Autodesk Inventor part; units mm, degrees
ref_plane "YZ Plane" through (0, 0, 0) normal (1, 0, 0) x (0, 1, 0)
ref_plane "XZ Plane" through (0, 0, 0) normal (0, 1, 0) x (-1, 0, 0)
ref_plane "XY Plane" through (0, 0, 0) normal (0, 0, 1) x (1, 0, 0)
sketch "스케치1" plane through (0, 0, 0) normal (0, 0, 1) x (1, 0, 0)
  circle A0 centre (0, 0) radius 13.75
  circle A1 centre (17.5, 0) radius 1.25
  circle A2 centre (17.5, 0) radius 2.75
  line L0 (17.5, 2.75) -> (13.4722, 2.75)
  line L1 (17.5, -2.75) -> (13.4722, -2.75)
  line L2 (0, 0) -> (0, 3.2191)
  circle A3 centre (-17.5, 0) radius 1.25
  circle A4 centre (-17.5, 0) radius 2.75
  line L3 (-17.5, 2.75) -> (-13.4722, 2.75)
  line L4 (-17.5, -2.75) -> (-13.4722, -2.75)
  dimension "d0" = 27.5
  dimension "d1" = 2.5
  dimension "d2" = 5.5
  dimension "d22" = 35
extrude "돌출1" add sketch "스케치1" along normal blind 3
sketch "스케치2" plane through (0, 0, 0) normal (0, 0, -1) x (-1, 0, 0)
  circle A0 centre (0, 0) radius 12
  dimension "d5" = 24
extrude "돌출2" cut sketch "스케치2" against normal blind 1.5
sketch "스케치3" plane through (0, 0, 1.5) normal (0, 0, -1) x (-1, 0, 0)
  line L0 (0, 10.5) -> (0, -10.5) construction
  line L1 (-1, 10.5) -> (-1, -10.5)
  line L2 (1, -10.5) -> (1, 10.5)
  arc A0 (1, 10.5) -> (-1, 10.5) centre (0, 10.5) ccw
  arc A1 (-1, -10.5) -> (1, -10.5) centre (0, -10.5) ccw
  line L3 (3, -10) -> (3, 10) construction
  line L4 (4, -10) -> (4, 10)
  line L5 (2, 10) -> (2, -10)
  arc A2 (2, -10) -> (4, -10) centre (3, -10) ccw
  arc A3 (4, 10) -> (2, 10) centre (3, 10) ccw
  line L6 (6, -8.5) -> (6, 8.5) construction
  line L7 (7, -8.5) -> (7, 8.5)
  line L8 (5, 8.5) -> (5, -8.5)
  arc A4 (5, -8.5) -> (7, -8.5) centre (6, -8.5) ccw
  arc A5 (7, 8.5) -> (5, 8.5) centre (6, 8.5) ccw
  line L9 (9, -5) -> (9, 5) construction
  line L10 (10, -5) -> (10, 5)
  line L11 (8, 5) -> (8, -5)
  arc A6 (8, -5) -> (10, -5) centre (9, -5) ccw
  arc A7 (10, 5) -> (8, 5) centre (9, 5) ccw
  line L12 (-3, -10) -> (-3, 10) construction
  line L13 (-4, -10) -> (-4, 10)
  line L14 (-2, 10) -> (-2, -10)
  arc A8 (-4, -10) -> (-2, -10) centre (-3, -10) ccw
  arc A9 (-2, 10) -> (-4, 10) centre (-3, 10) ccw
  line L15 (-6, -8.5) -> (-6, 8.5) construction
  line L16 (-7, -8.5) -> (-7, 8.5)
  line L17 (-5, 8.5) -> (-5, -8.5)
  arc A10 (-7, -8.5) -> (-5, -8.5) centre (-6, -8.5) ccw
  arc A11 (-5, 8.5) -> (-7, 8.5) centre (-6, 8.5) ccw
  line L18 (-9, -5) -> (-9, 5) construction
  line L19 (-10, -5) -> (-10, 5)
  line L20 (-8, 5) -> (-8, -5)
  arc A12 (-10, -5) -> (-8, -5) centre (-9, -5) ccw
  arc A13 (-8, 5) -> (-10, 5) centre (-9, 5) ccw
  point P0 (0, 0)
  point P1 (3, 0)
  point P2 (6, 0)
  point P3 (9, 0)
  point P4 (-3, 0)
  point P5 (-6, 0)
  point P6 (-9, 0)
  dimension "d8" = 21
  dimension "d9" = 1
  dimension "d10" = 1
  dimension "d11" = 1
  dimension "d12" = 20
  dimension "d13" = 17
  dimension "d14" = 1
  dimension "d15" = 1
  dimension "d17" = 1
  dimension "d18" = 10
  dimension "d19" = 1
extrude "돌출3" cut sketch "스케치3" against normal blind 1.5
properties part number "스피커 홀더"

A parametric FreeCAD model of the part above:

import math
import FreeCAD as App
import Part
import Sketcher
from FreeCAD import Vector

doc = App.newDocument("Part")
body = doc.addObject("PartDesign::Body", "Body")

sketch1 = body.newObject("Sketcher::SketchObject", "Sketch")
sketch1.AttachmentSupport = (doc.getObject("XY_Plane"), [""])
sketch1.MapMode = "FlatFace"
sketch1.addGeometry([
    Part.ArcOfCircle(Part.Circle(Vector(0, 0, 0), Vector(0, 0, 1), 13.8), math.radians(-168), math.radians(-12)),
    Part.LineSegment(Vector(13.5, -2.8, 0), Vector(17.5, -2.8, 0)),
    Part.ArcOfCircle(Part.Circle(Vector(17.5, 0, 0), Vector(0, 0, 1), 2.8), math.radians(-90), math.radians(90)),
    Part.LineSegment(Vector(17.5, 2.8, 0), Vector(13.5, 2.8, 0)),
    Part.ArcOfCircle(Part.Circle(Vector(0, 0, 0), Vector(0, 0, 1), 13.8), math.radians(12), math.radians(168)),
    Part.LineSegment(Vector(-13.5, 2.8, 0), Vector(-17.5, 2.8, 0)),
    Part.ArcOfCircle(Part.Circle(Vector(-17.5, 0, 0), Vector(0, 0, 1), 2.8), math.radians(90), math.radians(270)),
    Part.LineSegment(Vector(-17.5, -2.8, 0), Vector(-13.5, -2.8, 0)),
    Part.Circle(Vector(17.5, 0, 0), Vector(0, 0, 1), 1.2),
    Part.Circle(Vector(-17.5, 0, 0), Vector(0, 0, 1), 1.2),
], False)
sketch1.addConstraint([
    Sketcher.Constraint("Coincident", 0, 2, 1, 1),
    Sketcher.Constraint("Tangent", 1, 2, 2, 1),
    Sketcher.Constraint("Tangent", 2, 2, 3, 1),
    Sketcher.Constraint("Coincident", 3, 2, 4, 1),
    Sketcher.Constraint("Coincident", 4, 2, 5, 1),
    Sketcher.Constraint("Tangent", 5, 2, 6, 1),
    Sketcher.Constraint("Tangent", 6, 2, 7, 1),
    Sketcher.Constraint("Coincident", 7, 2, 0, 1),
    Sketcher.Constraint("Horizontal", 1),
    Sketcher.Constraint("Horizontal", 3),
    Sketcher.Constraint("Horizontal", 5),
    Sketcher.Constraint("Horizontal", 7),
    Sketcher.Constraint("Coincident", 0, 3, -1, 1),
    Sketcher.Constraint("Coincident", 4, 3, -1, 1),
    Sketcher.Constraint("Coincident", 8, 3, 2, 3),
    Sketcher.Constraint("Coincident", 9, 3, 6, 3),
    Sketcher.Constraint("Equal", 0, 4),
    Sketcher.Constraint("Equal", 2, 6),
    Sketcher.Constraint("Equal", 8, 9),
    Sketcher.Constraint("Symmetric", 2, 3, 6, 3, -1, 1),
    Sketcher.Constraint("PointOnObject", 2, 3, -1),
    Sketcher.Constraint("Diameter", 8, 2.5),
    Sketcher.Constraint("Radius", 0, 13.75),
    Sketcher.Constraint("Radius", 2, 2.75),
    Sketcher.Constraint("DistanceX", 6, 3, 2, 3, 35.0),
])
pad1 = body.newObject("PartDesign::Pad", "Pad")
pad1.Profile = sketch1
pad1.Length = 3

sketch2 = body.newObject("Sketcher::SketchObject", "Sketch001")
sketch2.AttachmentSupport = (doc.getObject("XY_Plane"), [""])
sketch2.MapMode = "FlatFace"
sketch2.addGeometry(Part.Circle(Vector(0, 0, 0), Vector(0, 0, 1), 12), False)
sketch2.addConstraint([
    Sketcher.Constraint("Coincident", 0, 3, -1, 1),
    Sketcher.Constraint("Diameter", 0, 24.0),
])
pocket1 = body.newObject("PartDesign::Pocket", "Pocket")
pocket1.Profile = sketch2
pocket1.Length = 1.5
pocket1.Reversed = True

sketch3 = body.newObject("Sketcher::SketchObject", "Sketch002")
sketch3.AttachmentSupport = (doc.getObject("XY_Plane"), [""])
sketch3.MapMode = "FlatFace"
sketch3.AttachmentOffset = App.Placement(Vector(0, 0, 1.5), App.Rotation())
sketch3.addGeometry([
    Part.ArcOfCircle(Part.Circle(Vector(0, 10.5, 0), Vector(0, 0, 1), 1), math.radians(0), math.radians(180)),
    Part.LineSegment(Vector(1, 10.5, 0), Vector(1, -10.5, 0)),
    Part.ArcOfCircle(Part.Circle(Vector(0, -10.5, 0), Vector(0, 0, 1), 1), math.radians(180), math.radians(360)),
    Part.LineSegment(Vector(-1, -10.5, 0), Vector(-1, 10.5, 0)),
    Part.ArcOfCircle(Part.Circle(Vector(-3, -10, 0), Vector(0, 0, 1), 1), math.radians(180), math.radians(360)),
    Part.LineSegment(Vector(-4, -10, 0), Vector(-4, 10, 0)),
    Part.ArcOfCircle(Part.Circle(Vector(-3, 10, 0), Vector(0, 0, 1), 1), math.radians(0), math.radians(180)),
    Part.LineSegment(Vector(-2, 10, 0), Vector(-2, -10, 0)),
    Part.ArcOfCircle(Part.Circle(Vector(-6, -8.5, 0), Vector(0, 0, 1), 1), math.radians(180), math.radians(360)),
    Part.LineSegment(Vector(-7, -8.5, 0), Vector(-7, 8.5, 0)),
    Part.ArcOfCircle(Part.Circle(Vector(-6, 8.5, 0), Vector(0, 0, 1), 1), math.radians(0), math.radians(180)),
    Part.LineSegment(Vector(-5, 8.5, 0), Vector(-5, -8.5, 0)),
    Part.ArcOfCircle(Part.Circle(Vector(-9, -5, 0), Vector(0, 0, 1), 1), math.radians(180), math.radians(360)),
    Part.LineSegment(Vector(-10, -5, 0), Vector(-10, 5, 0)),
    Part.ArcOfCircle(Part.Circle(Vector(-9, 5, 0), Vector(0, 0, 1), 1), math.radians(0), math.radians(180)),
    Part.LineSegment(Vector(-8, 5, 0), Vector(-8, -5, 0)),
    Part.LineSegment(Vector(4, 10, 0), Vector(4, -10, 0)),
    Part.ArcOfCircle(Part.Circle(Vector(3, -10, 0), Vector(0, 0, 1), 1), math.radians(180), math.radians(360)),
    Part.LineSegment(Vector(2, -10, 0), Vector(2, 10, 0)),
    Part.ArcOfCircle(Part.Circle(Vector(3, 10, 0), Vector(0, 0, 1), 1), math.radians(0), math.radians(180)),
    Part.LineSegment(Vector(7, 8.5, 0), Vector(7, -8.5, 0)),
    Part.ArcOfCircle(Part.Circle(Vector(6, -8.5, 0), Vector(0, 0, 1), 1), math.radians(180), math.radians(360)),
    Part.LineSegment(Vector(5, -8.5, 0), Vector(5, 8.5, 0)),
    Part.ArcOfCircle(Part.Circle(Vector(6, 8.5, 0), Vector(0, 0, 1), 1), math.radians(0), math.radians(180)),
    Part.LineSegment(Vector(10, 5, 0), Vector(10, -5, 0)),
    Part.ArcOfCircle(Part.Circle(Vector(9, -5, 0), Vector(0, 0, 1), 1), math.radians(180), math.radians(360)),
    Part.LineSegment(Vector(8, -5, 0), Vector(8, 5, 0)),
    Part.ArcOfCircle(Part.Circle(Vector(9, 5, 0), Vector(0, 0, 1), 1), math.radians(0), math.radians(180)),
], False)
sketch3.addConstraint([
    Sketcher.Constraint("Tangent", 0, 1, 1, 1),
    Sketcher.Constraint("Tangent", 1, 2, 2, 2),
    Sketcher.Constraint("Tangent", 2, 1, 3, 1),
    Sketcher.Constraint("Tangent", 3, 2, 0, 2),
    Sketcher.Constraint("Tangent", 4, 1, 5, 1),
    Sketcher.Constraint("Tangent", 5, 2, 6, 2),
    Sketcher.Constraint("Tangent", 6, 1, 7, 1),
    Sketcher.Constraint("Tangent", 7, 2, 4, 2),
    Sketcher.Constraint("Tangent", 8, 1, 9, 1),
    Sketcher.Constraint("Tangent", 9, 2, 10, 2),
    Sketcher.Constraint("Tangent", 10, 1, 11, 1),
    Sketcher.Constraint("Tangent", 11, 2, 8, 2),
    Sketcher.Constraint("Tangent", 12, 1, 13, 1),
    Sketcher.Constraint("Tangent", 13, 2, 14, 2),
    Sketcher.Constraint("Tangent", 14, 1, 15, 1),
    Sketcher.Constraint("Tangent", 15, 2, 12, 2),
    Sketcher.Constraint("Tangent", 16, 2, 17, 2),
    Sketcher.Constraint("Tangent", 17, 1, 18, 1),
    Sketcher.Constraint("Tangent", 18, 2, 19, 2),
    Sketcher.Constraint("Tangent", 19, 1, 16, 1),
    Sketcher.Constraint("Tangent", 20, 2, 21, 2),
    Sketcher.Constraint("Tangent", 21, 1, 22, 1),
    Sketcher.Constraint("Tangent", 22, 2, 23, 2),
    Sketcher.Constraint("Tangent", 23, 1, 20, 1),
    Sketcher.Constraint("Tangent", 24, 2, 25, 2),
    Sketcher.Constraint("Tangent", 25, 1, 26, 1),
    Sketcher.Constraint("Tangent", 26, 2, 27, 2),
    Sketcher.Constraint("Tangent", 27, 1, 24, 1),
    Sketcher.Constraint("Vertical", 1),
    Sketcher.Constraint("Vertical", 3),
    Sketcher.Constraint("Vertical", 5),
    Sketcher.Constraint("Vertical", 7),
    Sketcher.Constraint("Vertical", 9),
    Sketcher.Constraint("Vertical", 11),
    Sketcher.Constraint("Vertical", 13),
    Sketcher.Constraint("Vertical", 15),
    Sketcher.Constraint("Vertical", 16),
    Sketcher.Constraint("Vertical", 18),
    Sketcher.Constraint("Vertical", 20),
    Sketcher.Constraint("Vertical", 22),
    Sketcher.Constraint("Vertical", 24),
    Sketcher.Constraint("Vertical", 26),
    Sketcher.Constraint("Equal", 2, 4),
    Sketcher.Constraint("Equal", 6, 8),
    Sketcher.Constraint("Equal", 10, 12),
    Sketcher.Constraint("Equal", 14, 17),
    Sketcher.Constraint("Equal", 19, 21),
    Sketcher.Constraint("Equal", 23, 25),
    Sketcher.Constraint("Symmetric", 0, 3, 2, 3, -1, 1),
    Sketcher.Constraint("Symmetric", 6, 3, 17, 3, -1, 1),
    Sketcher.Constraint("Symmetric", 10, 3, 21, 3, -1, 1),
    Sketcher.Constraint("Symmetric", 14, 3, 25, 3, -1, 1),
    Sketcher.Constraint("Horizontal", 4, 3, 17, 3),
    Sketcher.Constraint("Horizontal", 6, 3, 19, 3),
    Sketcher.Constraint("Horizontal", 8, 3, 21, 3),
    Sketcher.Constraint("Horizontal", 10, 3, 23, 3),
    Sketcher.Constraint("Horizontal", 12, 3, 25, 3),
    Sketcher.Constraint("Horizontal", 14, 3, 27, 3),
    Sketcher.Constraint("Radius", 0, 1.0),
    Sketcher.Constraint("DistanceY", 1, 2, 1, 1, 21.0),
    Sketcher.Constraint("DistanceY", 5, 1, 5, 2, 20.0),
    Sketcher.Constraint("DistanceY", 9, 1, 9, 2, 17.0),
    Sketcher.Constraint("DistanceY", 13, 1, 13, 2, 10.0),
    Sketcher.Constraint("DistanceX", 12, 1, -1, 1, 10.0),
    Sketcher.Constraint("DistanceX", 6, 1, 3, 2, 1.0),
    Sketcher.Constraint("DistanceX", 10, 1, 5, 2, 1.0),
])
pocket2 = body.newObject("PartDesign::Pocket", "Pocket001")
pocket2.Profile = sketch3
pocket2.Length = 1.5
pocket2.Reversed = True

doc.recompute()
